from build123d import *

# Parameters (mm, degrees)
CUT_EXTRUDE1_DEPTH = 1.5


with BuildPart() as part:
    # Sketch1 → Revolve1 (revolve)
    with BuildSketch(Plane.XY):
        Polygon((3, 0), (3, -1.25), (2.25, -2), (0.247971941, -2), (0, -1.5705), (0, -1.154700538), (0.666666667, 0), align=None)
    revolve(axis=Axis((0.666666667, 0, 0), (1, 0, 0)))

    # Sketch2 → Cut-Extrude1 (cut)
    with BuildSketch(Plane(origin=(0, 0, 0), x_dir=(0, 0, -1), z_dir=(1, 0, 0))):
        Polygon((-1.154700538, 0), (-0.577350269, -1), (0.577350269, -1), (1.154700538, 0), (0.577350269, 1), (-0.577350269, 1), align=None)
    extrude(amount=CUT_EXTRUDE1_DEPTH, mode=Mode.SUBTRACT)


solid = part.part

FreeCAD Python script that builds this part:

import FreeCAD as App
import Part
import Sketcher
Q = App.Units.Quantity


def add_polygon(sketch, points):
    """Adds a closed chain of lines whose ends are joined by coincident constraints."""
    first, n = sketch.GeometryCount, len(points)
    for a, b in zip(points, points[1:] + points[:1]):
        sketch.addGeometry(Part.LineSegment(App.Vector(*a, 0), App.Vector(*b, 0)), False)
    for i in range(n):
        sketch.addConstraint(Sketcher.Constraint("Coincident", first + i, 2, first + (i + 1) % n, 1))

doc = App.newDocument("Part")
body = doc.addObject("PartDesign::Body", "Body")

sketch1 = body.newObject("Sketcher::SketchObject", "Sketch")
sketch1.AttachmentSupport = (doc.getObject("XY_Plane"), [""])
sketch1.MapMode = "FlatFace"
add_polygon(sketch1, [(3, -1.25), (3, 0), (0.666667, 0), (0, -1.154701), (0, -1.5705), (0.247972, -2), (2.25, -2)])
sketch1.addConstraint([
    Sketcher.Constraint("Vertical", 0),
    Sketcher.Constraint("Horizontal", 1),
    Sketcher.Constraint("Vertical", 3),
    Sketcher.Constraint("Horizontal", 5),
    Sketcher.Constraint("PointOnObject", 0, 2, -1),
    Sketcher.Constraint("PointOnObject", 2, 2, -2),
    Sketcher.Constraint("Angle", 2, Q("-120 deg")),
    Sketcher.Constraint("Angle", 4, Q("-60 deg")),
    Sketcher.Constraint("Angle", 6, Q("45 deg")),
    Sketcher.Constraint("DistanceX", -1, 1, 0, 2, 3.0),
    Sketcher.Constraint("DistanceY", 4, 2, -1, 1, 2.0),
    Sketcher.Constraint("DistanceY", 0, 1, 0, 2, 1.25),
    Sketcher.Constraint("DistanceY", 3, 2, 3, 1, 0.415799),
    Sketcher.Constraint("DistanceX", 5, 1, 5, 2, 2.002028),
])
revolution = body.newObject("PartDesign::Revolution", "Revolution")
revolution.Profile = sketch1
revolution.ReferenceAxis = (sketch1, ["H_Axis"])
revolution.Angle = 360

sketch2 = body.newObject("Sketcher::SketchObject", "Sketch001")
sketch2.AttachmentSupport = (doc.getObject("YZ_Plane"), [""])
sketch2.MapMode = "FlatFace"
add_polygon(sketch2, [(0, 1.154701), (-1, 0.57735), (-1, -0.57735), (0, -1.154701), (1, -0.57735), (1, 0.57735)])
sketch2.addConstraint([
    Sketcher.Constraint("Vertical", 1),
    Sketcher.Constraint("Vertical", 4),
    Sketcher.Constraint("Symmetric", 0, 2, 3, 2, -1, 1),
    Sketcher.Constraint("Symmetric", 2, 2, 5, 2, -1, 1),
    Sketcher.Constraint("PointOnObject", 2, 2, -2),
    Sketcher.Constraint("Parallel", 2, 5),
    Sketcher.Constraint("Horizontal", 1, 2, 3, 2),
    Sketcher.Constraint("Angle", 0, Q("-150 deg")),
    Sketcher.Constraint("DistanceX", 0, 2, -1, 1, 1.0),
    Sketcher.Constraint("DistanceY", 1, 2, 1, 1, 1.154701),
])
pocket1 = body.newObject("PartDesign::Pocket", "Pocket")
pocket1.Profile = sketch2
pocket1.Length = 1.5
pocket1.Reversed = True

doc.recompute()
